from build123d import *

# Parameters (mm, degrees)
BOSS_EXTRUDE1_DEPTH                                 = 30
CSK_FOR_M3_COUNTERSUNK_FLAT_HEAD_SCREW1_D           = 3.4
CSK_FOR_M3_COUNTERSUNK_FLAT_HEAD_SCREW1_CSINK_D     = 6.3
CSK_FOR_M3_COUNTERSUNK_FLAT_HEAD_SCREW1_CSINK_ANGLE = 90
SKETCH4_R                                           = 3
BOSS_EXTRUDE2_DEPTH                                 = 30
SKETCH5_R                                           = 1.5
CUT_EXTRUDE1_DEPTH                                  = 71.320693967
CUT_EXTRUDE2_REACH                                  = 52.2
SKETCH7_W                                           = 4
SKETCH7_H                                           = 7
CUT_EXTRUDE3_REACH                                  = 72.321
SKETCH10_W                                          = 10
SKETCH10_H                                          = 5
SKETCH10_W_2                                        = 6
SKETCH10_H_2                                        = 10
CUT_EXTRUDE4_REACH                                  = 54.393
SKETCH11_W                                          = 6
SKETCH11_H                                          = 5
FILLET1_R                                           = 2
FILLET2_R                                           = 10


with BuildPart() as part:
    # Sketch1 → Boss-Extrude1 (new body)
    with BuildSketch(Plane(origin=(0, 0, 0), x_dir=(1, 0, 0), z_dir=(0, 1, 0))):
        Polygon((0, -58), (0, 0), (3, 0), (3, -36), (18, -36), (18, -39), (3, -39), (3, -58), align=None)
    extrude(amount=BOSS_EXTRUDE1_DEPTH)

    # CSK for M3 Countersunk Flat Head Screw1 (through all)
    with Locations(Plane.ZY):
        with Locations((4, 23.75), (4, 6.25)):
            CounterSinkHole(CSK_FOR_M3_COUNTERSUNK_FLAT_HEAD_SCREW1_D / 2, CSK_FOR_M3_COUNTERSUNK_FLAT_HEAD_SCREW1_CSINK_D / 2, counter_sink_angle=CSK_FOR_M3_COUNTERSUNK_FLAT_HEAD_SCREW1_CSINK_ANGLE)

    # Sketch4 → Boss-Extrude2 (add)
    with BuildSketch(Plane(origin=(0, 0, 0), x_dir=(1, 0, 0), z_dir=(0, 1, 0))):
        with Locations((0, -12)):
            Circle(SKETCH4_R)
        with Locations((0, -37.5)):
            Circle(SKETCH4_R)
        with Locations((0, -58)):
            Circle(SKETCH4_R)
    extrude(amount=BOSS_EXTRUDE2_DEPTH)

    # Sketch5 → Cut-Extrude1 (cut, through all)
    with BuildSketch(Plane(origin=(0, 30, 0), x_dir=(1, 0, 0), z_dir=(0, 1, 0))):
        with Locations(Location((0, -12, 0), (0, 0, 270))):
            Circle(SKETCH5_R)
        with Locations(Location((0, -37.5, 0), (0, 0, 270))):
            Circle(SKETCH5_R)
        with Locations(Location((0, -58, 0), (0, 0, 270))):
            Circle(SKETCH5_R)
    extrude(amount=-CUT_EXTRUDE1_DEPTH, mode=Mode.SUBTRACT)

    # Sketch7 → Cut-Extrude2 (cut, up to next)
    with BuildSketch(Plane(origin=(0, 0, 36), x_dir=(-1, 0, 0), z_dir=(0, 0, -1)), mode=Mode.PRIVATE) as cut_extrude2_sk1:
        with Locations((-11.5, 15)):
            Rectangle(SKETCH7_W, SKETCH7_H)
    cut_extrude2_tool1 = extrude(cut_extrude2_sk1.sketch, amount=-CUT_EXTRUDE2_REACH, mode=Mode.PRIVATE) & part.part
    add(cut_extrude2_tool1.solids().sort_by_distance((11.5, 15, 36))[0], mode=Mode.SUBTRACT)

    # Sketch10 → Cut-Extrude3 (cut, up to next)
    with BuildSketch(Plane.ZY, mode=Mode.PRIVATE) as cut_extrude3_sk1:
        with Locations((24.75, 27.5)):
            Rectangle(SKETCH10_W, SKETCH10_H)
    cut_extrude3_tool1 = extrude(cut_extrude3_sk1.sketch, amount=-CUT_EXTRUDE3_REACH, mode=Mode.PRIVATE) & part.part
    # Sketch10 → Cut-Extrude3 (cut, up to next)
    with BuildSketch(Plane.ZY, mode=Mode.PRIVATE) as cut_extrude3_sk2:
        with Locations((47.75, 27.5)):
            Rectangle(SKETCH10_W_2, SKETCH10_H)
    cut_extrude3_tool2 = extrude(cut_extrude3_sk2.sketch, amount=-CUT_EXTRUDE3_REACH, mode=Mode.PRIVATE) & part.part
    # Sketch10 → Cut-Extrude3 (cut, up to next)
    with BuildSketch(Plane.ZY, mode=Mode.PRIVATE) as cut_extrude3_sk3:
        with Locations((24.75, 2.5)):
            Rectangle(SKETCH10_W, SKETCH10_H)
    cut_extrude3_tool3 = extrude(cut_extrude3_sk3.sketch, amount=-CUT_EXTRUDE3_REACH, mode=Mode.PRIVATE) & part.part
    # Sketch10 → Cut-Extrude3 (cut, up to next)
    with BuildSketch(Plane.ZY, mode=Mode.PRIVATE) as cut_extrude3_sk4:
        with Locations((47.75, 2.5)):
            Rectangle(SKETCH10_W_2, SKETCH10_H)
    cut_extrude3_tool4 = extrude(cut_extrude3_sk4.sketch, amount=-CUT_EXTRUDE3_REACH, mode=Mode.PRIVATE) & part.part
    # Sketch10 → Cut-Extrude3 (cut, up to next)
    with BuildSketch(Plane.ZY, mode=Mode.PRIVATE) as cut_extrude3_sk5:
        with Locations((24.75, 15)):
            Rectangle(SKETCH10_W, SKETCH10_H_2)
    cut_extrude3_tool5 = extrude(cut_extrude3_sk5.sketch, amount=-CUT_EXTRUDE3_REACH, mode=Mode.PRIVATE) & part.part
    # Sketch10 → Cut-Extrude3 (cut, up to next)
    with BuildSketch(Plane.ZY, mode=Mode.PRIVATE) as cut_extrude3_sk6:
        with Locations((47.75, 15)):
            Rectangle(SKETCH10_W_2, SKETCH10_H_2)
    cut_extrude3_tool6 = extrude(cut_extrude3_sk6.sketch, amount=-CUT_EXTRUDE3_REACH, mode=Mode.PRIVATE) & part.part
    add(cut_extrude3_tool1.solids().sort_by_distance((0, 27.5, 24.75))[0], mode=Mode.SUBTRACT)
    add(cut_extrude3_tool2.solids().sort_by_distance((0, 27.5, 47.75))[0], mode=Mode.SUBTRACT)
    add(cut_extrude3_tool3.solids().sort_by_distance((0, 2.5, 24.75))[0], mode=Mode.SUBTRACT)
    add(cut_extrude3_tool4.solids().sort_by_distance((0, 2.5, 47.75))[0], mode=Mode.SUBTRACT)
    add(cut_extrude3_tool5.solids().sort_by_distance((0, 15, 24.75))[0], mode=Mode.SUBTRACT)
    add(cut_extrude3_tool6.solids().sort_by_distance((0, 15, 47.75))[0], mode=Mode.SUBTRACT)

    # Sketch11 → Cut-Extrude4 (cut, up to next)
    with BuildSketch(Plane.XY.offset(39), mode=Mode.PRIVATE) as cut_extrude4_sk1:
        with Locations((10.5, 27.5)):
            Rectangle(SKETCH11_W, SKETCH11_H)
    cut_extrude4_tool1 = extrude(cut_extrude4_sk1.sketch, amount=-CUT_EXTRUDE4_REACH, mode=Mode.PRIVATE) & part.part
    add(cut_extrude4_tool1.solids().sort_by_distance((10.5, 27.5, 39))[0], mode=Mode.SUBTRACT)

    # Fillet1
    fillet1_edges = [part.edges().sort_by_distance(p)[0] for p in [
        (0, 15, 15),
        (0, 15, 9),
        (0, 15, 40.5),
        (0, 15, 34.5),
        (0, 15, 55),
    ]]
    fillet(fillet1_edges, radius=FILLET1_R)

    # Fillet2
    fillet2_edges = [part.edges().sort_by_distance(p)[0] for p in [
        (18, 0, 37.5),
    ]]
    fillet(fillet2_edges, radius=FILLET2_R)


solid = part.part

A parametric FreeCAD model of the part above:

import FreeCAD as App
import Part
import Sketcher

V = App.Vector


def edges_at(feature, points):
    """Names of the edges that pass closest to the given points."""
    edges = feature.Shape.Edges
    near = lambda p: min(range(len(edges)), key=lambda i: edges[i].distToShape(Part.Vertex(*p))[0])
    return sorted({f"Edge{near(p) + 1}" for p in points})


def add_polygon(sketch, points):
    """Adds a closed chain of lines whose ends are joined by coincident constraints."""
    first, n = sketch.GeometryCount, len(points)
    for a, b in zip(points, points[1:] + points[:1]):
        sketch.addGeometry(Part.LineSegment(App.Vector(*a, 0), App.Vector(*b, 0)), False)
    for i in range(n):
        sketch.addConstraint(Sketcher.Constraint("Coincident", first + i, 2, first + (i + 1) % n, 1))

doc = App.newDocument("Part")
params = doc.addObject("Spreadsheet::Sheet", "Params")
for row, (alias, value) in enumerate([
    ("sketch1_width", "3 mm"),
    ("sketch1_width2", "15 mm"),
    ("sketch1_height", "58 mm"),
    ("sketch1_height2", "19 mm"),
    ("pad1_length", "30 mm"),
    ("sketch2_diameter", "3.4 mm"),
    ("hole_diameter", "3.4 mm"),
    ("hole_csink_diameter", "6.3 mm"),
    ("sketch3_diameter", "6 mm"),
    ("pad2_length", "30 mm"),
    ("sketch4_diameter", "3 mm"),
    ("sketch5_width", "4 mm"),
    ("sketch5_height", "7 mm"),
    ("sketch6_width", "5 mm"),
    ("sketch6_height", "10 mm"),
    ("sketch7_width", "5 mm"),
    ("sketch7_height", "6 mm"),
    ("sketch8_width", "5 mm"),
    ("sketch8_height", "10 mm"),
    ("sketch9_width", "5 mm"),
    ("sketch9_height", "6 mm"),
    ("sketch10_width", "10 mm"),
    ("sketch11_width", "10 mm"),
    ("sketch11_height", "6 mm"),
    ("sketch12_width", "6 mm"),
    ("sketch12_height", "5 mm"),
    ("fillet_radius", "2 mm"),
    ("fillet2_radius", "10 mm"),
], start=1):
    params.set(f"A{row}", alias)
    params.set(f"B{row}", "=" + value)
    params.setAlias(f"B{row}", alias)

body = doc.addObject("PartDesign::Body", "Body")

sketch1 = body.newObject("Sketcher::SketchObject", "Sketch")
sketch1.AttachmentSupport = (doc.getObject("XZ_Plane"), [""])
sketch1.MapMode = "FlatFace"
add_polygon(sketch1, [(0, 0), (0, 58), (3, 58), (3, 39), (18, 39), (18, 36), (3, 36), (3, 0)])
sketch1.addConstraint(Sketcher.Constraint("Vertical", 0))
sketch1.addConstraint(Sketcher.Constraint("Horizontal", 1))
sketch1.addConstraint(Sketcher.Constraint("Vertical", 2))
sketch1.addConstraint(Sketcher.Constraint("Horizontal", 3))
sketch1.addConstraint(Sketcher.Constraint("Vertical", 4))
sketch1.addConstraint(Sketcher.Constraint("Horizontal", 5))
sketch1.addConstraint(Sketcher.Constraint("Vertical", 6))
sketch1.addConstraint(Sketcher.Constraint("Horizontal", 7))
sketch1.addConstraint(Sketcher.Constraint("Coincident", 7, 2, -1, 1))
sketch1.addConstraint(Sketcher.Constraint("Vertical", 2, 2, 5, 2))
sketch1.addConstraint(Sketcher.Constraint("Equal", 7, 4))
sketch1.addConstraint(Sketcher.Constraint("DistanceX", 1, 1, 1, 2, 3.0))
sketch1.addConstraint(Sketcher.Constraint("DistanceX", 3, 1, 3, 2, 15.0))
sketch1.addConstraint(Sketcher.Constraint("DistanceY", 0, 1, 0, 2, 58.0))
sketch1.addConstraint(Sketcher.Constraint("DistanceY", 2, 2, 2, 1, 19.0))
sketch1.setExpression("Constraints[19]", "Params.sketch1_width")
sketch1.setExpression("Constraints[20]", "Params.sketch1_width2")
sketch1.setExpression("Constraints[21]", "Params.sketch1_height")
sketch1.setExpression("Constraints[22]", "Params.sketch1_height2")
pad1 = body.newObject("PartDesign::Pad", "Pad")
pad1.Profile = sketch1
pad1.setExpression("Length", "Params.pad1_length")
pad1.Reversed = True

sketch2 = body.newObject("Sketcher::SketchObject", "Sketch001")
sketch2.AttachmentSupport = (doc.getObject("YZ_Plane"), [""])
sketch2.MapMode = "FlatFace"
sketch2.addGeometry(Part.Circle(V(23.8, 4, 0), V(0, 0, 1), 1.7), False)
sketch2.addGeometry(Part.Circle(V(6.2, 4, 0), V(0, 0, 1), 1.7), False)
sketch2.addConstraint(Sketcher.Constraint("Equal", 0, 1))
sketch2.addConstraint(Sketcher.Constraint("Horizontal", 0, 3, 1, 3))
sketch2.addConstraint(Sketcher.Constraint("Diameter", 0, 3.4))
sketch2.addConstraint(Sketcher.Constraint("DistanceY", -1, 1, 0, 3, 4.0))
sketch2.addConstraint(Sketcher.Constraint("DistanceX", 1, 3, 0, 3, 17.5))
sketch2.addConstraint(Sketcher.Constraint("DistanceX", -1, 1, 0, 3, 23.75))
sketch2.setExpression("Constraints[2]", "Params.sketch2_diameter")
doc.recompute()
hole = body.newObject("PartDesign::Hole", "Hole")
hole.Profile = sketch2
hole.ThreadType = "None"
hole.setExpression("Diameter", "Params.hole_diameter")
hole.DepthType = "ThroughAll"
hole.HoleCutType = "Countersink"
hole.setExpression("HoleCutDiameter", "Params.hole_csink_diameter")
hole.HoleCutCountersinkAngle = 90
hole.Reversed = True

sketch3 = body.newObject("Sketcher::SketchObject", "Sketch002")
sketch3.AttachmentSupport = (doc.getObject("XZ_Plane"), [""])
sketch3.MapMode = "FlatFace"
sketch3.addGeometry(Part.Circle(V(0, 12, 0), V(0, 0, 1), 3), False)
sketch3.addGeometry(Part.Circle(V(0, 37.5, 0), V(0, 0, 1), 3), False)
sketch3.addGeometry(Part.Circle(V(0, 58, 0), V(0, 0, 1), 3), False)
sketch3.addConstraint(Sketcher.Constraint("Equal", 0, 1))
sketch3.addConstraint(Sketcher.Constraint("Equal", 1, 2))
sketch3.addConstraint(Sketcher.Constraint("PointOnObject", 0, 3, -2))
sketch3.addConstraint(Sketcher.Constraint("PointOnObject", 1, 3, -2))
sketch3.addConstraint(Sketcher.Constraint("PointOnObject", 2, 3, -2))
sketch3.addConstraint(Sketcher.Constraint("Diameter", 0, 6.0))
sketch3.addConstraint(Sketcher.Constraint("DistanceY", -1, 1, 0, 3, 12.0))
sketch3.addConstraint(Sketcher.Constraint("DistanceY", -1, 1, 2, 3, 58.0))
sketch3.addConstraint(Sketcher.Constraint("DistanceY", -1, 1, 1, 3, 37.5))
sketch3.setExpression("Constraints[5]", "Params.sketch3_diameter")
pad2 = body.newObject("PartDesign::Pad", "Pad001")
pad2.Profile = sketch3
pad2.setExpression("Length", "Params.pad2_length")
pad2.Reversed = True

sketch4 = body.newObject("Sketcher::SketchObject", "Sketch003")
sketch4.AttachmentSupport = (doc.getObject("XZ_Plane"), [""])
sketch4.MapMode = "FlatFace"
sketch4.AttachmentOffset = App.Placement(V(0, 0, -30), App.Rotation())
sketch4.addGeometry(Part.Circle(V(0, 12, 0), V(0, 0, 1), 1.5), False)
sketch4.addGeometry(Part.Circle(V(0, 37.5, 0), V(0, 0, 1), 1.5), False)
sketch4.addGeometry(Part.Circle(V(0, 58, 0), V(0, 0, 1), 1.5), False)
sketch4.addConstraint(Sketcher.Constraint("Equal", 0, 1))
sketch4.addConstraint(Sketcher.Constraint("Equal", 1, 2))
sketch4.addConstraint(Sketcher.Constraint("PointOnObject", 0, 3, -2))
sketch4.addConstraint(Sketcher.Constraint("PointOnObject", 1, 3, -2))
sketch4.addConstraint(Sketcher.Constraint("PointOnObject", 2, 3, -2))
sketch4.addConstraint(Sketcher.Constraint("Diameter", 0, 3.0))
sketch4.addConstraint(Sketcher.Constraint("DistanceY", -1, 1, 0, 3, 12.0))
sketch4.addConstraint(Sketcher.Constraint("DistanceY", -1, 1, 2, 3, 58.0))
sketch4.addConstraint(Sketcher.Constraint("DistanceY", -1, 1, 1, 3, 37.5))
sketch4.setExpression("Constraints[5]", "Params.sketch4_diameter")
pocket1 = body.newObject("PartDesign::Pocket", "Pocket")
pocket1.Profile = sketch4
pocket1.Type = "ThroughAll"
pocket1.Reversed = True

sketch5 = body.newObject("Sketcher::SketchObject", "Sketch004")
sketch5.AttachmentSupport = (doc.getObject("XY_Plane"), [""])
sketch5.MapMode = "FlatFace"
sketch5.AttachmentOffset = App.Placement(V(0, 0, 36), App.Rotation())
add_polygon(sketch5, [(13.5, 18.5), (13.5, 11.5), (9.5, 11.5), (9.5, 18.5)])
sketch5.addConstraint(Sketcher.Constraint("Vertical", 0))
sketch5.addConstraint(Sketcher.Constraint("Horizontal", 1))
sketch5.addConstraint(Sketcher.Constraint("Vertical", 2))
sketch5.addConstraint(Sketcher.Constraint("Horizontal", 3))
sketch5.addConstraint(Sketcher.Constraint("DistanceX", 1, 2, 1, 1, 4.0))
sketch5.addConstraint(Sketcher.Constraint("DistanceY", 0, 2, 0, 1, 7.0))
sketch5.addConstraint(Sketcher.Constraint("DistanceX", -1, 1, 0, 2, 13.5))
sketch5.addConstraint(Sketcher.Constraint("DistanceY", -1, 1, 0, 2, 11.5))
sketch5.setExpression("Constraints[8]", "Params.sketch5_width")
sketch5.setExpression("Constraints[9]", "Params.sketch5_height")
pocket2 = body.newObject("PartDesign::Pocket", "Pocket001")
pocket2.Profile = sketch5
pocket2.Type = "UpToFirst"
pocket2.Reversed = True

sketch6 = body.newObject("Sketcher::SketchObject", "Sketch005")
sketch6.AttachmentSupport = (doc.getObject("YZ_Plane"), [""])
sketch6.MapMode = "FlatFace"
add_polygon(sketch6, [(30, 20), (25, 20), (25, 30), (30, 30)])
sketch6.addConstraint(Sketcher.Constraint("Horizontal", 0))
sketch6.addConstraint(Sketcher.Constraint("Vertical", 1))
sketch6.addConstraint(Sketcher.Constraint("Horizontal", 2))
sketch6.addConstraint(Sketcher.Constraint("Vertical", 3))
sketch6.addConstraint(Sketcher.Constraint("DistanceX", 0, 2, 0, 1, 5.0))
sketch6.addConstraint(Sketcher.Constraint("DistanceY", 1, 1, 1, 2, 10.0))
sketch6.addConstraint(Sketcher.Constraint("DistanceX", -1, 1, 0, 2, 25.0))
sketch6.addConstraint(Sketcher.Constraint("DistanceY", -1, 1, 0, 2, 19.75))
sketch6.setExpression("Constraints[8]", "Params.sketch6_width")
sketch6.setExpression("Constraints[9]", "Params.sketch6_height")
pocket3 = body.newObject("PartDesign::Pocket", "Pocket002")
pocket3.Profile = sketch6
pocket3.Type = "UpToFirst"
pocket3.Reversed = True

sketch7 = body.newObject("Sketcher::SketchObject", "Sketch006")
sketch7.AttachmentSupport = (doc.getObject("YZ_Plane"), [""])
sketch7.MapMode = "FlatFace"
add_polygon(sketch7, [(30, 45), (25, 45), (25, 51), (30, 51)])
sketch7.addConstraint(Sketcher.Constraint("Horizontal", 0))
sketch7.addConstraint(Sketcher.Constraint("Vertical", 1))
sketch7.addConstraint(Sketcher.Constraint("Horizontal", 2))
sketch7.addConstraint(Sketcher.Constraint("Vertical", 3))
sketch7.addConstraint(Sketcher.Constraint("DistanceX", 0, 2, 0, 1, 5.0))
sketch7.addConstraint(Sketcher.Constraint("DistanceY", 1, 1, 1, 2, 6.0))
sketch7.addConstraint(Sketcher.Constraint("DistanceX", -1, 1, 0, 2, 25.0))
sketch7.addConstraint(Sketcher.Constraint("DistanceY", -1, 1, 0, 2, 44.75))
sketch7.setExpression("Constraints[8]", "Params.sketch7_width")
sketch7.setExpression("Constraints[9]", "Params.sketch7_height")
pocket4 = body.newObject("PartDesign::Pocket", "Pocket003")
pocket4.Profile = sketch7
pocket4.Type = "UpToFirst"
pocket4.Reversed = True

sketch8 = body.newObject("Sketcher::SketchObject", "Sketch007")
sketch8.AttachmentSupport = (doc.getObject("YZ_Plane"), [""])
sketch8.MapMode = "FlatFace"
add_polygon(sketch8, [(5, 20), (0, 20), (0, 30), (5, 30)])
sketch8.addConstraint(Sketcher.Constraint("Horizontal", 0))
sketch8.addConstraint(Sketcher.Constraint("Vertical", 1))
sketch8.addConstraint(Sketcher.Constraint("Horizontal", 2))
sketch8.addConstraint(Sketcher.Constraint("Vertical", 3))
sketch8.addConstraint(Sketcher.Constraint("PointOnObject", 0, 2, -2))
sketch8.addConstraint(Sketcher.Constraint("DistanceX", 0, 2, 0, 1, 5.0))
sketch8.addConstraint(Sketcher.Constraint("DistanceY", 1, 1, 1, 2, 10.0))
sketch8.addConstraint(Sketcher.Constraint("DistanceY", -1, 1, 0, 2, 19.75))
sketch8.setExpression("Constraints[9]", "Params.sketch8_width")
sketch8.setExpression("Constraints[10]", "Params.sketch8_height")
pocket5 = body.newObject("PartDesign::Pocket", "Pocket004")
pocket5.Profile = sketch8
pocket5.Type = "UpToFirst"
pocket5.Reversed = True

sketch9 = body.newObject("Sketcher::SketchObject", "Sketch008")
sketch9.AttachmentSupport = (doc.getObject("YZ_Plane"), [""])
sketch9.MapMode = "FlatFace"
add_polygon(sketch9, [(5, 45), (0, 45), (0, 51), (5, 51)])
sketch9.addConstraint(Sketcher.Constraint("Horizontal", 0))
sketch9.addConstraint(Sketcher.Constraint("Vertical", 1))
sketch9.addConstraint(Sketcher.Constraint("Horizontal", 2))
sketch9.addConstraint(Sketcher.Constraint("Vertical", 3))
sketch9.addConstraint(Sketcher.Constraint("PointOnObject", 0, 2, -2))
sketch9.addConstraint(Sketcher.Constraint("DistanceX", 0, 2, 0, 1, 5.0))
sketch9.addConstraint(Sketcher.Constraint("DistanceY", 1, 1, 1, 2, 6.0))
sketch9.addConstraint(Sketcher.Constraint("DistanceY", -1, 1, 0, 2, 44.75))
sketch9.setExpression("Constraints[9]", "Params.sketch9_width")
sketch9.setExpression("Constraints[10]", "Params.sketch9_height")
pocket6 = body.newObject("PartDesign::Pocket", "Pocket005")
pocket6.Profile = sketch9
pocket6.Type = "UpToFirst"
pocket6.Reversed = True

sketch10 = body.newObject("Sketcher::SketchObject", "Sketch009")
sketch10.AttachmentSupport = (doc.getObject("YZ_Plane"), [""])
sketch10.MapMode = "FlatFace"
add_polygon(sketch10, [(20, 20), (10, 20), (10, 30), (20, 30)])
sketch10.addConstraint(Sketcher.Constraint("Horizontal", 0))
sketch10.addConstraint(Sketcher.Constraint("Vertical", 1))
sketch10.addConstraint(Sketcher.Constraint("Horizontal", 2))
sketch10.addConstraint(Sketcher.Constraint("Vertical", 3))
sketch10.addConstraint(Sketcher.Constraint("Equal", 2, 1))
sketch10.addConstraint(Sketcher.Constraint("DistanceX", 0, 2, 0, 1, 10.0))
sketch10.addConstraint(Sketcher.Constraint("DistanceX", -1, 1, 0, 2, 10.0))
sketch10.addConstraint(Sketcher.Constraint("DistanceY", -1, 1, 0, 2, 19.75))
sketch10.setExpression("Constraints[9]", "Params.sketch10_width")
pocket7 = body.newObject("PartDesign::Pocket", "Pocket006")
pocket7.Profile = sketch10
pocket7.Type = "UpToFirst"
pocket7.Reversed = True

sketch11 = body.newObject("Sketcher::SketchObject", "Sketch010")
sketch11.AttachmentSupport = (doc.getObject("YZ_Plane"), [""])
sketch11.MapMode = "FlatFace"
add_polygon(sketch11, [(20, 45), (10, 45), (10, 51), (20, 51)])
sketch11.addConstraint(Sketcher.Constraint("Horizontal", 0))
sketch11.addConstraint(Sketcher.Constraint("Vertical", 1))
sketch11.addConstraint(Sketcher.Constraint("Horizontal", 2))
sketch11.addConstraint(Sketcher.Constraint("Vertical", 3))
sketch11.addConstraint(Sketcher.Constraint("DistanceX", 0, 2, 0, 1, 10.0))
sketch11.addConstraint(Sketcher.Constraint("DistanceY", 1, 1, 1, 2, 6.0))
sketch11.addConstraint(Sketcher.Constraint("DistanceX", -1, 1, 0, 2, 10.0))
sketch11.addConstraint(Sketcher.Constraint("DistanceY", -1, 1, 0, 2, 44.75))
sketch11.setExpression("Constraints[8]", "Params.sketch11_width")
sketch11.setExpression("Constraints[9]", "Params.sketch11_height")
pocket8 = body.newObject("PartDesign::Pocket", "Pocket007")
pocket8.Profile = sketch11
pocket8.Type = "UpToFirst"
pocket8.Reversed = True

sketch12 = body.newObject("Sketcher::SketchObject", "Sketch011")
sketch12.AttachmentSupport = (doc.getObject("XY_Plane"), [""])
sketch12.MapMode = "FlatFace"
sketch12.AttachmentOffset = App.Placement(V(0, 0, 39), App.Rotation())
add_polygon(sketch12, [(8, 30), (8, 25), (14, 25), (14, 30)])
sketch12.addConstraint(Sketcher.Constraint("Vertical", 0))
sketch12.addConstraint(Sketcher.Constraint("Horizontal", 1))
sketch12.addConstraint(Sketcher.Constraint("Vertical", 2))
sketch12.addConstraint(Sketcher.Constraint("Horizontal", 3))
sketch12.addConstraint(Sketcher.Constraint("DistanceX", 1, 1, 1, 2, 6.0))
sketch12.addConstraint(Sketcher.Constraint("DistanceY", 0, 2, 0, 1, 5.0))
sketch12.addConstraint(Sketcher.Constraint("DistanceY", -1, 1, 0, 2, 25.0))
sketch12.addConstraint(Sketcher.Constraint("DistanceX", -1, 1, 0, 2, 7.5))
sketch12.setExpression("Constraints[8]", "Params.sketch12_width")
sketch12.setExpression("Constraints[9]", "Params.sketch12_height")
pocket9 = body.newObject("PartDesign::Pocket", "Pocket008")
pocket9.Profile = sketch12
pocket9.Type = "UpToFirst"
doc.recompute()

fillet = body.newObject("PartDesign::Fillet", "Fillet")
fillet.Base = (pocket9, edges_at(pocket9, [
    (0, 15, 15),
    (0, 15, 9),
    (0, 15, 40.5),
    (0, 15, 34.5),
    (0, 15, 55),
]))
fillet.setExpression("Radius", "Params.fillet_radius")
doc.recompute()

fillet2 = body.newObject("PartDesign::Fillet", "Fillet001")
fillet2.Base = (fillet, edges_at(fillet, [(18, 0, 37.5)]))
fillet2.setExpression("Radius", "Params.fillet2_radius")

doc.recompute()
